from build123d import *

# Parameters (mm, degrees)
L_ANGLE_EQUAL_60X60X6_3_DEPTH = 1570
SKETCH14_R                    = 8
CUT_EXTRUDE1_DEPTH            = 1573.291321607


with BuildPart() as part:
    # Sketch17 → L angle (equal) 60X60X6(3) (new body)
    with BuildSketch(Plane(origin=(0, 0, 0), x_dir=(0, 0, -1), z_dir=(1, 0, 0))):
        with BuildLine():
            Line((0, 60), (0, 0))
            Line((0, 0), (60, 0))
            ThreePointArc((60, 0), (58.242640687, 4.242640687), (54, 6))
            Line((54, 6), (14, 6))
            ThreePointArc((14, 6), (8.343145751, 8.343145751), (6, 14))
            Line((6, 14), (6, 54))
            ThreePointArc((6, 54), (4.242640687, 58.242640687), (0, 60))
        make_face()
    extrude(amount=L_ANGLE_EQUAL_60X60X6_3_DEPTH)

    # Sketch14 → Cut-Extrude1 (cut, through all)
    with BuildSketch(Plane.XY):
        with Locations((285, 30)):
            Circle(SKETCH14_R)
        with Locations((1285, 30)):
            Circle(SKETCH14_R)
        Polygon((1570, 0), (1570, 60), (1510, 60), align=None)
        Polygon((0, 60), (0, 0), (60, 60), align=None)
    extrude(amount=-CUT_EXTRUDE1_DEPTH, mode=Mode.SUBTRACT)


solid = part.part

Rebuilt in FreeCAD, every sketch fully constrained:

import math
import FreeCAD as App
import Part
import Sketcher

V = App.Vector


def add_polygon(sketch, points):
    """Adds a closed chain of lines whose ends are joined by coincident constraints."""
    first, n = sketch.GeometryCount, len(points)
    for a, b in zip(points, points[1:] + points[:1]):
        sketch.addGeometry(Part.LineSegment(App.Vector(*a, 0), App.Vector(*b, 0)), False)
    for i in range(n):
        sketch.addConstraint(Sketcher.Constraint("Coincident", first + i, 2, first + (i + 1) % n, 1))

doc = App.newDocument("Part")
body = doc.addObject("PartDesign::Body", "Body")

sketch1 = body.newObject("Sketcher::SketchObject", "Sketch")
sketch1.AttachmentSupport = (doc.getObject("YZ_Plane"), [""])
sketch1.MapMode = "FlatFace"
sketch1.addGeometry([
    Part.LineSegment(V(60, 0, 0), V(0, 0, 0)),
    Part.LineSegment(V(0, 0, 0), V(0, -60, 0)),
    Part.ArcOfCircle(Part.Circle(V(0, -54, 0), V(0, 0, 1), 6), math.radians(-90), math.radians(0)),
    Part.LineSegment(V(6, -54, 0), V(6, -14, 0)),
    Part.ArcOfCircle(Part.Circle(V(14, -14, 0), V(0, 0, 1), 8), math.radians(90), math.radians(180)),
    Part.LineSegment(V(14, -6, 0), V(54, -6, 0)),
    Part.ArcOfCircle(Part.Circle(V(54, 0, 0), V(0, 0, 1), 6), math.radians(-90), math.radians(0)),
], False)
sketch1.addConstraint([
    Sketcher.Constraint("Coincident", 0, 2, 1, 1),
    Sketcher.Constraint("Coincident", 1, 2, 2, 1),
    Sketcher.Constraint("Tangent", 2, 2, 3, 1),
    Sketcher.Constraint("Tangent", 3, 2, 4, 2),
    Sketcher.Constraint("Tangent", 4, 1, 5, 1),
    Sketcher.Constraint("Tangent", 5, 2, 6, 1),
    Sketcher.Constraint("Coincident", 6, 2, 0, 1),
    Sketcher.Constraint("Horizontal", 0),
    Sketcher.Constraint("Vertical", 1),
    Sketcher.Constraint("Vertical", 3),
    Sketcher.Constraint("Horizontal", 5),
    Sketcher.Constraint("Coincident", 0, 2, -1, 1),
    Sketcher.Constraint("Equal", 2, 6),
    Sketcher.Constraint("PointOnObject", 2, 3, -2),
    Sketcher.Constraint("PointOnObject", 6, 3, -1),
    Sketcher.Constraint("Equal", 0, 1),
    Sketcher.Constraint("Radius", 2, 6.0),
    Sketcher.Constraint("Radius", 4, 8.0),
    Sketcher.Constraint("DistanceX", 0, 2, 0, 1, 60.0),
])
pad1 = body.newObject("PartDesign::Pad", "Pad")
pad1.Profile = sketch1
pad1.Length = 1570

sketch2 = body.newObject("Sketcher::SketchObject", "Sketch001")
sketch2.AttachmentSupport = (doc.getObject("XY_Plane"), [""])
sketch2.MapMode = "FlatFace"
sketch2.addGeometry(Part.Circle(V(285, 30, 0), V(0, 0, 1), 8), False)
sketch2.addGeometry(Part.Circle(V(1285, 30, 0), V(0, 0, 1), 8), False)
add_polygon(sketch2, [(1570, 0), (1570, 60), (1510, 60)])
add_polygon(sketch2, [(0, 60), (0, 0), (60, 60)])
sketch2.addConstraint([
    Sketcher.Constraint("Vertical", 2),
    Sketcher.Constraint("Horizontal", 3),
    Sketcher.Constraint("Vertical", 5),
    Sketcher.Constraint("Horizontal", 7),
    Sketcher.Constraint("Coincident", 5, 2, -1, 1),
    Sketcher.Constraint("Equal", 0, 1),
    Sketcher.Constraint("PointOnObject", 4, 2, -1),
    Sketcher.Constraint("Perpendicular", 4, 6),
    Sketcher.Constraint("Horizontal", 0, 3, 1, 3),
    Sketcher.Constraint("Horizontal", 3, 2, 6, 2),
    Sketcher.Constraint("Equal", 3, 7),
    Sketcher.Constraint("Diameter", 0, 16.0),
    Sketcher.Constraint("DistanceX", 3, 2, 3, 1, 60.0),
    Sketcher.Constraint("DistanceX", -1, 1, 0, 3, 285.0),
    Sketcher.Constraint("DistanceY", -1, 1, 0, 3, 30.0),
    Sketcher.Constraint("DistanceX", -1, 1, 1, 3, 1285.0),
    Sketcher.Constraint("DistanceX", -1, 1, 2, 2, 1570.0),
])
pocket1 = body.newObject("PartDesign::Pocket", "Pocket")
pocket1.Profile = sketch2
pocket1.Type = "ThroughAll"

doc.recompute()
